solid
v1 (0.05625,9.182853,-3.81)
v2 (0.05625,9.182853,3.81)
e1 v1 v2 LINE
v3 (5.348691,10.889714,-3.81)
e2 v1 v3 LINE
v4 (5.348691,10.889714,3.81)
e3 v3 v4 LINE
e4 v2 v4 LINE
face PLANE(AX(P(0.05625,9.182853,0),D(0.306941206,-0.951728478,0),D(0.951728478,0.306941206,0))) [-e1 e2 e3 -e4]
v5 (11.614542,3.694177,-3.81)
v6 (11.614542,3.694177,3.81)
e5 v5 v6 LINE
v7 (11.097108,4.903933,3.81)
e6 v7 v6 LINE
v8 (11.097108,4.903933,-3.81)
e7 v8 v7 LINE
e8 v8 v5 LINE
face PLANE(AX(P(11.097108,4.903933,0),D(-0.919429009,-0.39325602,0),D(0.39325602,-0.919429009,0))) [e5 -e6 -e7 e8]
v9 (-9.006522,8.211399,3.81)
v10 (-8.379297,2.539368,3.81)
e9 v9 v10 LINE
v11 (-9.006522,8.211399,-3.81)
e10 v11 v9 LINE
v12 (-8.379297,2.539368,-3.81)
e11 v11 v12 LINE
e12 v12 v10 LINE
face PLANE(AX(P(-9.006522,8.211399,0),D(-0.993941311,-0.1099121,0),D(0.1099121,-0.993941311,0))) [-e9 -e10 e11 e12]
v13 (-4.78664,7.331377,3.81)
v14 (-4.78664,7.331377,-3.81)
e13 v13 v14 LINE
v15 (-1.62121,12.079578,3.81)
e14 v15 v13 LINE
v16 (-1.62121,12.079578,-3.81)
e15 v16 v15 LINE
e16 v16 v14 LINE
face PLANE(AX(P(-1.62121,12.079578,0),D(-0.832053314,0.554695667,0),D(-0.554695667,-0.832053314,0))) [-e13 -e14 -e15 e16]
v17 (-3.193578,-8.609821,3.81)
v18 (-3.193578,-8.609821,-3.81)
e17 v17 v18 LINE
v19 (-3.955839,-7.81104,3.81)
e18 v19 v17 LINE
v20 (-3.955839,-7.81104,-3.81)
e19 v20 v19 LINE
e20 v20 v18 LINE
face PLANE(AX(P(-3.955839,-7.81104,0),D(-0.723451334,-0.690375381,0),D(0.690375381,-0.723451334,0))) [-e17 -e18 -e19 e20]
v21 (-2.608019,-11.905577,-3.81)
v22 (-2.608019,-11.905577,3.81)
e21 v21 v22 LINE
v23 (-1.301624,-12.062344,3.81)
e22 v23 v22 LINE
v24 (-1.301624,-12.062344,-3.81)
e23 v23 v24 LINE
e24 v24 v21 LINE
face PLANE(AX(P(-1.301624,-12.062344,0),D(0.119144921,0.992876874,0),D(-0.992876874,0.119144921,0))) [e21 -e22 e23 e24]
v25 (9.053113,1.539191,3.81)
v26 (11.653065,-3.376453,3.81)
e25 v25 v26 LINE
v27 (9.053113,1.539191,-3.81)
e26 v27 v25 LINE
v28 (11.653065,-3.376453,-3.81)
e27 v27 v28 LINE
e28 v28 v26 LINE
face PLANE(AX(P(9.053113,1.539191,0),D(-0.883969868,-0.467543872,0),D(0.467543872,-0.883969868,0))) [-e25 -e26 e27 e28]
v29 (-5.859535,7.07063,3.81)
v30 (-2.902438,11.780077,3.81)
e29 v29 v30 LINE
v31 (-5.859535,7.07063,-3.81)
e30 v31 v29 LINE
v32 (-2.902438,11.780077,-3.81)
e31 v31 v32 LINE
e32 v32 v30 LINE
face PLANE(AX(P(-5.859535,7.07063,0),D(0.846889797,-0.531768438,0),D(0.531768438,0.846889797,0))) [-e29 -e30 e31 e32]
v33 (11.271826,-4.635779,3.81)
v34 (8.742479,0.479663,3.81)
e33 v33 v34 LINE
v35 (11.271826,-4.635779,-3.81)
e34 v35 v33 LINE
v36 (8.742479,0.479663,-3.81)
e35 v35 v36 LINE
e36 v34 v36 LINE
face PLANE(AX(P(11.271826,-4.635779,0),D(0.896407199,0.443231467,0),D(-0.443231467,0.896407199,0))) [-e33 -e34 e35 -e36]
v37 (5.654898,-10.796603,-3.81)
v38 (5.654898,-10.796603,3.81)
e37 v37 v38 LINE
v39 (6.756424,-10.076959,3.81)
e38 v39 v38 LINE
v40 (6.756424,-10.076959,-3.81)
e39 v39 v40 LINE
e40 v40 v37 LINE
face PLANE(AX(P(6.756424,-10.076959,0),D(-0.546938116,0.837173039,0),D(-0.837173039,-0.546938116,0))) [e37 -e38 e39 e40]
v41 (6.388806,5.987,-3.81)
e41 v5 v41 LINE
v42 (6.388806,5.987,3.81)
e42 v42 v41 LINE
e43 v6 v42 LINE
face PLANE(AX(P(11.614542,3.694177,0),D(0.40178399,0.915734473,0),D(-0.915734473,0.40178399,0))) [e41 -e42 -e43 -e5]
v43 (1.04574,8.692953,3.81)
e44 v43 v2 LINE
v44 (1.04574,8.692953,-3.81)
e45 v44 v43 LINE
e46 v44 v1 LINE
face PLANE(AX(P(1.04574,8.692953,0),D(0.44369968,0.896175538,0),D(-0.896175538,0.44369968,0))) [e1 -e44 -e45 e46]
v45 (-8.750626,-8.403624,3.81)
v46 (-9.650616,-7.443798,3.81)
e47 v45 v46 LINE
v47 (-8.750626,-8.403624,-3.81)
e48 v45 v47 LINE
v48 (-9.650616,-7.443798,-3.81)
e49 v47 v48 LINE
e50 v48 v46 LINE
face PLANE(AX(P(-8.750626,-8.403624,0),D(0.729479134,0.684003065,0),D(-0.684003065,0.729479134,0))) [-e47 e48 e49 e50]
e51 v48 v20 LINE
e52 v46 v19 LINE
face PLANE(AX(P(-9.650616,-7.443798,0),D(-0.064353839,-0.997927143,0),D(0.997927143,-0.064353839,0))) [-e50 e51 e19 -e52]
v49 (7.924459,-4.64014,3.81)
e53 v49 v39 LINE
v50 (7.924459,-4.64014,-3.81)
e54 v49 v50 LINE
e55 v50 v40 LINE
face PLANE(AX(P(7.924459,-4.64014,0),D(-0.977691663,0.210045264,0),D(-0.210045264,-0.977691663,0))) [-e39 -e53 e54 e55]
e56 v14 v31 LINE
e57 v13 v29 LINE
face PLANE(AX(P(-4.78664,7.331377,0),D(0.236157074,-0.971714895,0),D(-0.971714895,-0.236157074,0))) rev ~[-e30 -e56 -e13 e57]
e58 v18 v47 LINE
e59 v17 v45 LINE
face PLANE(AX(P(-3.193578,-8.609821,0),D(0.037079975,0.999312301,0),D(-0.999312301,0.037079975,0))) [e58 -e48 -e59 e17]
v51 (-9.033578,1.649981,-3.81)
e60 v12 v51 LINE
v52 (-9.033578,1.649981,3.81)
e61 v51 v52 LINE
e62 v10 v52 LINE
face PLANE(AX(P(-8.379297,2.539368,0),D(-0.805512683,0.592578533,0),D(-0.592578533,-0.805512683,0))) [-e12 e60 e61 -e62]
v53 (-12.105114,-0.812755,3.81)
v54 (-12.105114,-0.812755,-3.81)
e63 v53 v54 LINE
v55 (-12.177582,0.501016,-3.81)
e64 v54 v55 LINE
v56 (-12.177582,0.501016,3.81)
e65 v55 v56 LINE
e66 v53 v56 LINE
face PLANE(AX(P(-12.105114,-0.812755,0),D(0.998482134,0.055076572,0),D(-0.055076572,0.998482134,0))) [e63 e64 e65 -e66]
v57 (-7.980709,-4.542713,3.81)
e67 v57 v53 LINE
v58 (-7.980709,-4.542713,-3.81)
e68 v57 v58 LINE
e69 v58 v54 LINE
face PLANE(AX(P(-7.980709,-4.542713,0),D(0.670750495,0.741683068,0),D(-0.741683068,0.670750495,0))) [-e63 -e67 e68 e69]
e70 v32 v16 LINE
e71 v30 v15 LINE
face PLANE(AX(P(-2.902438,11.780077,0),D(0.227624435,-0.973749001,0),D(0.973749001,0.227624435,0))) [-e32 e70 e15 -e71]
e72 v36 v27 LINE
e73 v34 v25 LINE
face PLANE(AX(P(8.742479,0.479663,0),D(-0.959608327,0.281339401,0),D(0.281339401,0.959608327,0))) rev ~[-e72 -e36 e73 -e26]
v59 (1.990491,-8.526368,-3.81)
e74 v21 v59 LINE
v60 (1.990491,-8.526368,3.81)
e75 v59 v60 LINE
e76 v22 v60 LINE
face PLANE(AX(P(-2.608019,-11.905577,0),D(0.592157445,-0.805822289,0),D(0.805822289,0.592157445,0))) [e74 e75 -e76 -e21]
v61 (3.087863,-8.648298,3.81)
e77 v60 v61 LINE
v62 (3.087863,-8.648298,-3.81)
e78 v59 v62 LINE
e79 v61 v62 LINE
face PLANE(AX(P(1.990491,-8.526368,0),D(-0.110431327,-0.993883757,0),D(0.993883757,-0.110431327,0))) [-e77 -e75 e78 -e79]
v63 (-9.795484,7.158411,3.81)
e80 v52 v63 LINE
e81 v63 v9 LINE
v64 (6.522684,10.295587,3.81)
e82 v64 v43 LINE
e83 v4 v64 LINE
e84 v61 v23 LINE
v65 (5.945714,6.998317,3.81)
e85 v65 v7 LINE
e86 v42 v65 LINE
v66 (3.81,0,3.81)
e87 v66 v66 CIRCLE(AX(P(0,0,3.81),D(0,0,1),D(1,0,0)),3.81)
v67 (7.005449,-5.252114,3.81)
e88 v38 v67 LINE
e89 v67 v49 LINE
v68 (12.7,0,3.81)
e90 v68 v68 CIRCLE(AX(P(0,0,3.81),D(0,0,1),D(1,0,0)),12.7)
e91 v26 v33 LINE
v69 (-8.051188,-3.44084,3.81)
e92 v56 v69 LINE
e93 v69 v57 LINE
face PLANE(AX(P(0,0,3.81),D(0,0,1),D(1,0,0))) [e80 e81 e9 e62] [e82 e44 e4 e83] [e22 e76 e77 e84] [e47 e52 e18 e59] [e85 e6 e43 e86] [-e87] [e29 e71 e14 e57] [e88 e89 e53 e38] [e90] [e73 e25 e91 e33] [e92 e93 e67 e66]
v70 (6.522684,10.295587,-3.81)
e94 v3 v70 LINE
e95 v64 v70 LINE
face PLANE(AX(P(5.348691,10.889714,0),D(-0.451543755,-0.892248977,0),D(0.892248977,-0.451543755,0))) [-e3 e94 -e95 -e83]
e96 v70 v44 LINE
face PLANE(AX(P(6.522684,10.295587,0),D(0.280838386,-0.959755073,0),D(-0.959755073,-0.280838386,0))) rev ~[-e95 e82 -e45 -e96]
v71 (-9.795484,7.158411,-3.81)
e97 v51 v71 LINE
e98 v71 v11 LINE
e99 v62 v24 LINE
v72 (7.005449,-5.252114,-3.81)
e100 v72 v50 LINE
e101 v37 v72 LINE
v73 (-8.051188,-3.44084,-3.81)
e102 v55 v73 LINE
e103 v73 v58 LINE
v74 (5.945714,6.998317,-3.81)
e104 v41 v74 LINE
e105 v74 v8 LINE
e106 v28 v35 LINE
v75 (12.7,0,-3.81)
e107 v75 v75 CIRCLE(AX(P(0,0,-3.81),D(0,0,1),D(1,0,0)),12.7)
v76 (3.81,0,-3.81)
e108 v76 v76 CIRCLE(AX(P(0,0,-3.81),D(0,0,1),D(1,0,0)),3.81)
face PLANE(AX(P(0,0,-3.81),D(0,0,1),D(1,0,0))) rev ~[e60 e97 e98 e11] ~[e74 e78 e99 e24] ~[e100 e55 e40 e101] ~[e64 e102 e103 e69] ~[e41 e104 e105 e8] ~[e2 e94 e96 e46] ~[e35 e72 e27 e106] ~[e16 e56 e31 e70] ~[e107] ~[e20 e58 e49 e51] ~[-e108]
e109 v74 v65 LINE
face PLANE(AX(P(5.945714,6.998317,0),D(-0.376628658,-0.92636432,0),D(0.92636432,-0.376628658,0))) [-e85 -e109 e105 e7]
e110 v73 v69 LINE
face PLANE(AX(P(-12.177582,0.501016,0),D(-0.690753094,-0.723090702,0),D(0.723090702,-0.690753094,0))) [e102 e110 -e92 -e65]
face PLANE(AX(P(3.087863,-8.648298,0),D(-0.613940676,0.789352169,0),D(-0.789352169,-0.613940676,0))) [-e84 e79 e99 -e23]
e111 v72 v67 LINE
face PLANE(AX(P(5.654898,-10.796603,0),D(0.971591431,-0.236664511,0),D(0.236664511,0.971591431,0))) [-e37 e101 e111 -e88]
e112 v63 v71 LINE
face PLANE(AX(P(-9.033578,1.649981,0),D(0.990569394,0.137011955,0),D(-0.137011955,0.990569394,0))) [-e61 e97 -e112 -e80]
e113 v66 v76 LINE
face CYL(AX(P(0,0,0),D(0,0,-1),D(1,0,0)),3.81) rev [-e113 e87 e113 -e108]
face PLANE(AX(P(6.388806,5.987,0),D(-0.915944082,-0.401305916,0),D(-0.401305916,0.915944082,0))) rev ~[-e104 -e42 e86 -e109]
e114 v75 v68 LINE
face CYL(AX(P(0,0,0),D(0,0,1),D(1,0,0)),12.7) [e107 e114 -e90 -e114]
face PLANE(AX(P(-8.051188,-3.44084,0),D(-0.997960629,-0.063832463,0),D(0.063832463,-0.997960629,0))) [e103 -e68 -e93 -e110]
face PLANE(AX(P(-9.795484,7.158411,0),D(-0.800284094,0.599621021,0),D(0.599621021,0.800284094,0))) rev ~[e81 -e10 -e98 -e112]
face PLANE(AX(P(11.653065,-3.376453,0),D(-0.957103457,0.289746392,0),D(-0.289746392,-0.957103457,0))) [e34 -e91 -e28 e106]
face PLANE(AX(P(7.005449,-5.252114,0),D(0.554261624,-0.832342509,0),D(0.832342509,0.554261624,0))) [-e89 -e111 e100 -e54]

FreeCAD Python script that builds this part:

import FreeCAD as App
import Part
import Sketcher
from FreeCAD import Vector
Q = App.Units.Quantity

doc = App.newDocument("Part")
body = doc.addObject("PartDesign::Body", "Body")

sketch1 = body.newObject("Sketcher::SketchObject", "Sketch")
sketch1.AttachmentSupport = (doc.getObject("XY_Plane"), [""])
sketch1.MapMode = "FlatFace"
sketch1.addGeometry([
    Part.Circle(Vector(0, 0, 0), Vector(0, 0, 1), 12.7),
    Part.LineSegment(Vector(-8.750626, -8.403624, 0), Vector(-9.650616, -7.443798, 0)),
    Part.LineSegment(Vector(-9.650616, -7.443798, 0), Vector(-3.955839, -7.81104, 0)),
    Part.LineSegment(Vector(-3.955839, -7.81104, 0), Vector(-3.193578, -8.609821, 0)),
    Part.LineSegment(Vector(-3.193578, -8.609821, 0), Vector(-8.750626, -8.403624, 0)),
    Part.LineSegment(Vector(-12.105114, -0.812755, 0), Vector(-12.177582, 0.501016, 0)),
    Part.LineSegment(Vector(-12.177582, 0.501016, 0), Vector(-8.051188, -3.44084, 0)),
    Part.LineSegment(Vector(-8.051188, -3.44084, 0), Vector(-7.980709, -4.542713, 0)),
    Part.LineSegment(Vector(-7.980709, -4.542713, 0), Vector(-12.105114, -0.812755, 0)),
    Part.LineSegment(Vector(-1.301624, -12.062344, 0), Vector(-2.608019, -11.905577, 0)),
    Part.LineSegment(Vector(-2.608019, -11.905577, 0), Vector(1.990491, -8.526368, 0)),
    Part.LineSegment(Vector(1.990491, -8.526368, 0), Vector(3.087863, -8.648298, 0)),
    Part.LineSegment(Vector(3.087863, -8.648298, 0), Vector(-1.301624, -12.062344, 0)),
    Part.LineSegment(Vector(6.756424, -10.076959, 0), Vector(5.654898, -10.796603, 0)),
    Part.LineSegment(Vector(5.654898, -10.796603, 0), Vector(7.005449, -5.252114, 0)),
    Part.LineSegment(Vector(7.005449, -5.252114, 0), Vector(7.924459, -4.64014, 0)),
    Part.LineSegment(Vector(7.924459, -4.64014, 0), Vector(6.756424, -10.076959, 0)),
    Part.Circle(Vector(0, 0, 0), Vector(0, 0, 1), 3.81),
    Part.LineSegment(Vector(11.653065, -3.376453, 0), Vector(11.271826, -4.635779, 0)),
    Part.LineSegment(Vector(11.271826, -4.635779, 0), Vector(8.742479, 0.479663, 0)),
    Part.LineSegment(Vector(8.742479, 0.479663, 0), Vector(9.053113, 1.539191, 0)),
    Part.LineSegment(Vector(9.053113, 1.539191, 0), Vector(11.653065, -3.376453, 0)),
    Part.LineSegment(Vector(-8.379297, 2.539368, 0), Vector(-9.033578, 1.649981, 0)),
    Part.LineSegment(Vector(-9.033578, 1.649981, 0), Vector(-9.795484, 7.158411, 0)),
    Part.LineSegment(Vector(-9.795484, 7.158411, 0), Vector(-9.006522, 8.211399, 0)),
    Part.LineSegment(Vector(-9.006522, 8.211399, 0), Vector(-8.379297, 2.539368, 0)),
    Part.LineSegment(Vector(-2.902438, 11.780077, 0), Vector(-1.62121, 12.079578, 0)),
    Part.LineSegment(Vector(-1.62121, 12.079578, 0), Vector(-4.78664, 7.331377, 0)),
    Part.LineSegment(Vector(-4.78664, 7.331377, 0), Vector(-5.859535, 7.07063, 0)),
    Part.LineSegment(Vector(-5.859535, 7.07063, 0), Vector(-2.902438, 11.780077, 0)),
    Part.LineSegment(Vector(11.097108, 4.903933, 0), Vector(11.614542, 3.694177, 0)),
    Part.LineSegment(Vector(11.614542, 3.694177, 0), Vector(6.388806, 5.987, 0)),
    Part.LineSegment(Vector(6.388806, 5.987, 0), Vector(5.945714, 6.998317, 0)),
    Part.LineSegment(Vector(5.945714, 6.998317, 0), Vector(11.097108, 4.903933, 0)),
    Part.LineSegment(Vector(5.348691, 10.889714, 0), Vector(6.522684, 10.295587, 0)),
    Part.LineSegment(Vector(6.522684, 10.295587, 0), Vector(1.04574, 8.692953, 0)),
    Part.LineSegment(Vector(1.04574, 8.692953, 0), Vector(0.05625, 9.182853, 0)),
    Part.LineSegment(Vector(0.05625, 9.182853, 0), Vector(5.348691, 10.889714, 0)),
], False)
sketch1.addConstraint([
    Sketcher.Constraint("Coincident", 1, 2, 2, 1),
    Sketcher.Constraint("Coincident", 2, 2, 3, 1),
    Sketcher.Constraint("Coincident", 3, 2, 4, 1),
    Sketcher.Constraint("Coincident", 4, 2, 1, 1),
    Sketcher.Constraint("Coincident", 5, 2, 6, 1),
    Sketcher.Constraint("Coincident", 6, 2, 7, 1),
    Sketcher.Constraint("Coincident", 7, 2, 8, 1),
    Sketcher.Constraint("Coincident", 8, 2, 5, 1),
    Sketcher.Constraint("Coincident", 9, 2, 10, 1),
    Sketcher.Constraint("Coincident", 10, 2, 11, 1),
    Sketcher.Constraint("Coincident", 11, 2, 12, 1),
    Sketcher.Constraint("Coincident", 12, 2, 9, 1),
    Sketcher.Constraint("Coincident", 13, 2, 14, 1),
    Sketcher.Constraint("Coincident", 14, 2, 15, 1),
    Sketcher.Constraint("Coincident", 15, 2, 16, 1),
    Sketcher.Constraint("Coincident", 16, 2, 13, 1),
    Sketcher.Constraint("Coincident", 18, 2, 19, 1),
    Sketcher.Constraint("Coincident", 19, 2, 20, 1),
    Sketcher.Constraint("Coincident", 20, 2, 21, 1),
    Sketcher.Constraint("Coincident", 21, 2, 18, 1),
    Sketcher.Constraint("Coincident", 22, 2, 23, 1),
    Sketcher.Constraint("Coincident", 23, 2, 24, 1),
    Sketcher.Constraint("Coincident", 24, 2, 25, 1),
    Sketcher.Constraint("Coincident", 25, 2, 22, 1),
    Sketcher.Constraint("Coincident", 26, 2, 27, 1),
    Sketcher.Constraint("Coincident", 27, 2, 28, 1),
    Sketcher.Constraint("Coincident", 28, 2, 29, 1),
    Sketcher.Constraint("Coincident", 29, 2, 26, 1),
    Sketcher.Constraint("Coincident", 30, 2, 31, 1),
    Sketcher.Constraint("Coincident", 31, 2, 32, 1),
    Sketcher.Constraint("Coincident", 32, 2, 33, 1),
    Sketcher.Constraint("Coincident", 33, 2, 30, 1),
    Sketcher.Constraint("Coincident", 34, 2, 35, 1),
    Sketcher.Constraint("Coincident", 35, 2, 36, 1),
    Sketcher.Constraint("Coincident", 36, 2, 37, 1),
    Sketcher.Constraint("Coincident", 37, 2, 34, 1),
    Sketcher.Constraint("Coincident", 0, 3, -1, 1),
    Sketcher.Constraint("Coincident", 17, 3, -1, 1),
    Sketcher.Constraint("Diameter", 0, Q("1 in")),
    Sketcher.Constraint("Diameter", 17, Q("0.3 in")),
    Sketcher.Constraint("DistanceX", -1, 1, 13, 2, Q("5.654898 mm")),
    Sketcher.Constraint("DistanceY", -1, 1, 24, 2, Q("8.211399 mm")),
    Sketcher.Constraint("DistanceY", -1, 1, 31, 2, Q("5.987 mm")),
    Sketcher.Constraint("DistanceY", 2, 2, 6, 2, Q("4.3702 mm")),
    Sketcher.Constraint("DistanceX", 8, 2, 1, 2, Q("2.454498 mm")),
    Sketcher.Constraint("DistanceX", 2, 2, 11, 2, Q("7.043702 mm")),
    Sketcher.Constraint("DistanceY", 27, 2, 26, 2, Q("4.748201 mm")),
    Sketcher.Constraint("DistanceY", 29, 2, 26, 2, Q("0.299501 mm")),
    Sketcher.Constraint("DistanceX", 32, 2, 20, 2, Q("3.107399 mm")),
    Sketcher.Constraint("DistanceY", 35, 2, 36, 2, Q("0.4899 mm")),
    Sketcher.Constraint("Distance", 1, Q("1.315769 mm")),
    Sketcher.Constraint("Distance", 5, Q("1.315768 mm")),
    Sketcher.Constraint("Distance", 13, Q("1.315769 mm")),
    Sketcher.Constraint("Distance", 26, Q("1.315768 mm")),
    Sketcher.Constraint("Distance", 30, Q("1.315769 mm")),
    Sketcher.Constraint("Distance", 34, Q("1.315768 mm")),
    Sketcher.Constraint("DistanceX", 2, 2, -1, 1, Q("3.955839 mm")),
    Sketcher.Constraint("DistanceY", 2, 2, -1, 1, Q("7.81104 mm")),
    Sketcher.Constraint("DistanceX", 3, 2, -1, 1, Q("3.193578 mm")),
    Sketcher.Constraint("DistanceY", 3, 2, -1, 1, Q("8.609821 mm")),
    Sketcher.Constraint("DistanceX", 5, 2, -1, 1, Q("12.177582 mm")),
    Sketcher.Constraint("DistanceX", 7, 2, -1, 1, Q("7.980709 mm")),
    Sketcher.Constraint("DistanceX", 9, 2, -1, 1, Q("2.608019 mm")),
    Sketcher.Constraint("DistanceX", -1, 1, 10, 2, Q("1.990491 mm")),
    Sketcher.Constraint("DistanceX", -1, 1, 14, 2, Q("7.005449 mm")),
    Sketcher.Constraint("DistanceX", -1, 1, 15, 2, Q("7.924459 mm")),
    Sketcher.Constraint("DistanceY", 15, 2, -1, 1, Q("4.64014 mm")),
    Sketcher.Constraint("DistanceY", 16, 2, -1, 1, Q("10.076959 mm")),
    Sketcher.Constraint("DistanceY", 18, 2, -1, 1, Q("4.635779 mm")),
    Sketcher.Constraint("DistanceX", -1, 1, 19, 2, Q("8.742479 mm")),
    Sketcher.Constraint("DistanceY", -1, 1, 20, 2, Q("1.539191 mm")),
    Sketcher.Constraint("DistanceY", -1, 1, 22, 2, Q("1.649981 mm")),
    Sketcher.Constraint("DistanceY", -1, 1, 23, 2, Q("7.158411 mm")),
    Sketcher.Constraint("DistanceY", -1, 1, 25, 2, Q("2.539368 mm")),
    Sketcher.Constraint("DistanceX", 26, 2, -1, 1, Q("1.62121 mm")),
    Sketcher.Constraint("DistanceX", 27, 2, -1, 1, Q("4.78664 mm")),
    Sketcher.Constraint("DistanceY", -1, 1, 28, 2, Q("7.07063 mm")),
    Sketcher.Constraint("DistanceX", -1, 1, 35, 2, Q("1.04574 mm")),
    Sketcher.Constraint("DistanceX", -1, 1, 36, 2, Q("0.05625 mm")),
    Sketcher.Constraint("DistanceX", -1, 1, 37, 2, Q("5.348691 mm")),
    Sketcher.Constraint("DistanceX", 1, 2, 4, 2, Q("0.89999 mm")),
    Sketcher.Constraint("DistanceY", 4, 2, 5, 2, Q("8.90464 mm")),
    Sketcher.Constraint("DistanceX", 4, 2, 6, 2, Q("0.699438 mm")),
    Sketcher.Constraint("DistanceX", 6, 2, 2, 2, Q("4.095349 mm")),
    Sketcher.Constraint("DistanceY", 4, 2, 7, 2, Q("3.860911 mm")),
    Sketcher.Constraint("DistanceY", 3, 2, 7, 2, Q("4.067108 mm")),
    Sketcher.Constraint("DistanceY", 9, 2, 1, 2, Q("4.461779 mm")),
    Sketcher.Constraint("DistanceY", 9, 2, 10, 2, Q("3.379209 mm")),
    Sketcher.Constraint("DistanceY", 11, 2, 10, 2, Q("0.12193 mm")),
    Sketcher.Constraint("DistanceX", 12, 2, 13, 2, Q("6.956522 mm")),
    Sketcher.Constraint("DistanceY", 12, 2, 13, 2, Q("1.265741 mm")),
    Sketcher.Constraint("DistanceY", 13, 2, 3, 2, Q("2.186782 mm")),
    Sketcher.Constraint("DistanceY", 13, 2, 14, 2, Q("5.544489 mm")),
    Sketcher.Constraint("DistanceX", 13, 2, 18, 2, Q("5.616928 mm")),
    Sketcher.Constraint("DistanceX", 18, 2, 21, 2, Q("0.381239 mm")),
    Sketcher.Constraint("DistanceY", 14, 2, 21, 2, Q("1.875661 mm")),
    Sketcher.Constraint("DistanceX", 20, 2, 21, 2, Q("2.599952 mm")),
    Sketcher.Constraint("DistanceX", 22, 2, 6, 2, Q("0.98239 mm")),
    Sketcher.Constraint("DistanceX", 8, 2, 23, 2, Q("2.30963 mm")),
    Sketcher.Constraint("DistanceX", 23, 2, 24, 2, Q("0.788962 mm")),
    Sketcher.Constraint("DistanceX", 22, 2, 25, 2, Q("0.654281 mm")),
    Sketcher.Constraint("DistanceY", 24, 2, 26, 2, Q("3.868179 mm")),
    Sketcher.Constraint("DistanceX", 23, 2, 28, 2, Q("3.935949 mm")),
    Sketcher.Constraint("DistanceX", 20, 2, 30, 2, Q("2.561429 mm")),
    Sketcher.Constraint("DistanceY", 21, 2, 30, 2, Q("7.07063 mm")),
    Sketcher.Constraint("DistanceY", 30, 2, 32, 2, Q("3.30414 mm")),
    Sketcher.Constraint("DistanceX", 19, 2, 33, 2, Q("2.354629 mm")),
    Sketcher.Constraint("DistanceY", 19, 2, 33, 2, Q("4.42427 mm")),
    Sketcher.Constraint("DistanceX", 32, 2, 34, 2, Q("0.57697 mm")),
    Sketcher.Constraint("DistanceY", 32, 2, 34, 2, Q("3.29727 mm")),
    Sketcher.Constraint("DistanceX", 31, 2, 34, 2, Q("0.133878 mm")),
    Sketcher.Constraint("DistanceY", 35, 2, 37, 2, Q("2.196761 mm")),
])
pad1 = body.newObject("PartDesign::Pad", "Pad")
pad1.Profile = sketch1
pad1.Length = Q("0.3 in")
pad1.Midplane = True

doc.recompute()
